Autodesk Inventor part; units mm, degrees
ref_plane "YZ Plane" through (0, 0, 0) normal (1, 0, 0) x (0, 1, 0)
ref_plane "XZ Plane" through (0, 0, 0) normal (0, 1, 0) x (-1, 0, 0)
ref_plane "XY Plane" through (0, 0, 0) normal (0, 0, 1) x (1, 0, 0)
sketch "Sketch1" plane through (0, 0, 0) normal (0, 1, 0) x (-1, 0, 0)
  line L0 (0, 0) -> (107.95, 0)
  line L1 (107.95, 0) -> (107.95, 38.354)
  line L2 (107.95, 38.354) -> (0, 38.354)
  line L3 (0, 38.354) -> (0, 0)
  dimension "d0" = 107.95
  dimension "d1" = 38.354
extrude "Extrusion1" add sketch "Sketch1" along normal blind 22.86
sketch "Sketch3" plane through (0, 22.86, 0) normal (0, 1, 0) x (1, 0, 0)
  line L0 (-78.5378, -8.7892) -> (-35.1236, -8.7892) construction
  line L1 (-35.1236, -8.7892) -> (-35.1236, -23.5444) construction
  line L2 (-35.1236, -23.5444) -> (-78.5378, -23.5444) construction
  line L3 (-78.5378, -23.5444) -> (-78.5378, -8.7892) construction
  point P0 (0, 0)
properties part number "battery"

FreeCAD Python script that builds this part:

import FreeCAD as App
import Part
import Sketcher
from FreeCAD import Vector
Q = App.Units.Quantity


def add_polygon(sketch, points):
    """Adds a closed chain of lines whose ends are joined by coincident constraints."""
    first, n = sketch.GeometryCount, len(points)
    for a, b in zip(points, points[1:] + points[:1]):
        sketch.addGeometry(Part.LineSegment(App.Vector(*a, 0), App.Vector(*b, 0)), False)
    for i in range(n):
        sketch.addConstraint(Sketcher.Constraint("Coincident", first + i, 2, first + (i + 1) % n, 1))

doc = App.newDocument("Part")
params = doc.addObject("Spreadsheet::Sheet", "Params")
for row, (alias, value) in enumerate([
    ("sketch1_width", "4.25 in"),
    ("sketch1_height", "1.51 in"),
    ("pad1_length", "0.9 in"),
], start=1):
    params.set(f"A{row}", alias)
    params.set(f"B{row}", "=" + value)
    params.setAlias(f"B{row}", alias)

body = doc.addObject("PartDesign::Body", "Body")

sketch1 = doc.addObject("Sketcher::SketchObject", "Sketch")
body.addObject(sketch1)
sketch1.AttachmentSupport = (doc.XZ_Plane, [""])
sketch1.MapMode = "FlatFace"
add_polygon(sketch1, [(0, 38), (0, 0), (-108, 0), (-108, 38)])
sketch1.addConstraint([
    Sketcher.Constraint("Vertical", 0),
    Sketcher.Constraint("Horizontal", 1),
    Sketcher.Constraint("Vertical", 2),
    Sketcher.Constraint("Horizontal", 3),
    Sketcher.Constraint("Coincident", 0, 2, -1, 1),
    Sketcher.Constraint("DistanceX", 1, 2, 1, 1, Q("4.25 in")),
    Sketcher.Constraint("DistanceY", 0, 2, 0, 1, Q("1.51 in")),
])
sketch1.setExpression("Constraints[9]", "Params.sketch1_width")
sketch1.setExpression("Constraints[10]", "Params.sketch1_height")
pad1 = doc.addObject("PartDesign::Pad", "Pad")
body.addObject(pad1)
pad1.Profile = sketch1
pad1.setExpression("Length", "Params.pad1_length")
pad1.Reversed = True

doc.recompute()
